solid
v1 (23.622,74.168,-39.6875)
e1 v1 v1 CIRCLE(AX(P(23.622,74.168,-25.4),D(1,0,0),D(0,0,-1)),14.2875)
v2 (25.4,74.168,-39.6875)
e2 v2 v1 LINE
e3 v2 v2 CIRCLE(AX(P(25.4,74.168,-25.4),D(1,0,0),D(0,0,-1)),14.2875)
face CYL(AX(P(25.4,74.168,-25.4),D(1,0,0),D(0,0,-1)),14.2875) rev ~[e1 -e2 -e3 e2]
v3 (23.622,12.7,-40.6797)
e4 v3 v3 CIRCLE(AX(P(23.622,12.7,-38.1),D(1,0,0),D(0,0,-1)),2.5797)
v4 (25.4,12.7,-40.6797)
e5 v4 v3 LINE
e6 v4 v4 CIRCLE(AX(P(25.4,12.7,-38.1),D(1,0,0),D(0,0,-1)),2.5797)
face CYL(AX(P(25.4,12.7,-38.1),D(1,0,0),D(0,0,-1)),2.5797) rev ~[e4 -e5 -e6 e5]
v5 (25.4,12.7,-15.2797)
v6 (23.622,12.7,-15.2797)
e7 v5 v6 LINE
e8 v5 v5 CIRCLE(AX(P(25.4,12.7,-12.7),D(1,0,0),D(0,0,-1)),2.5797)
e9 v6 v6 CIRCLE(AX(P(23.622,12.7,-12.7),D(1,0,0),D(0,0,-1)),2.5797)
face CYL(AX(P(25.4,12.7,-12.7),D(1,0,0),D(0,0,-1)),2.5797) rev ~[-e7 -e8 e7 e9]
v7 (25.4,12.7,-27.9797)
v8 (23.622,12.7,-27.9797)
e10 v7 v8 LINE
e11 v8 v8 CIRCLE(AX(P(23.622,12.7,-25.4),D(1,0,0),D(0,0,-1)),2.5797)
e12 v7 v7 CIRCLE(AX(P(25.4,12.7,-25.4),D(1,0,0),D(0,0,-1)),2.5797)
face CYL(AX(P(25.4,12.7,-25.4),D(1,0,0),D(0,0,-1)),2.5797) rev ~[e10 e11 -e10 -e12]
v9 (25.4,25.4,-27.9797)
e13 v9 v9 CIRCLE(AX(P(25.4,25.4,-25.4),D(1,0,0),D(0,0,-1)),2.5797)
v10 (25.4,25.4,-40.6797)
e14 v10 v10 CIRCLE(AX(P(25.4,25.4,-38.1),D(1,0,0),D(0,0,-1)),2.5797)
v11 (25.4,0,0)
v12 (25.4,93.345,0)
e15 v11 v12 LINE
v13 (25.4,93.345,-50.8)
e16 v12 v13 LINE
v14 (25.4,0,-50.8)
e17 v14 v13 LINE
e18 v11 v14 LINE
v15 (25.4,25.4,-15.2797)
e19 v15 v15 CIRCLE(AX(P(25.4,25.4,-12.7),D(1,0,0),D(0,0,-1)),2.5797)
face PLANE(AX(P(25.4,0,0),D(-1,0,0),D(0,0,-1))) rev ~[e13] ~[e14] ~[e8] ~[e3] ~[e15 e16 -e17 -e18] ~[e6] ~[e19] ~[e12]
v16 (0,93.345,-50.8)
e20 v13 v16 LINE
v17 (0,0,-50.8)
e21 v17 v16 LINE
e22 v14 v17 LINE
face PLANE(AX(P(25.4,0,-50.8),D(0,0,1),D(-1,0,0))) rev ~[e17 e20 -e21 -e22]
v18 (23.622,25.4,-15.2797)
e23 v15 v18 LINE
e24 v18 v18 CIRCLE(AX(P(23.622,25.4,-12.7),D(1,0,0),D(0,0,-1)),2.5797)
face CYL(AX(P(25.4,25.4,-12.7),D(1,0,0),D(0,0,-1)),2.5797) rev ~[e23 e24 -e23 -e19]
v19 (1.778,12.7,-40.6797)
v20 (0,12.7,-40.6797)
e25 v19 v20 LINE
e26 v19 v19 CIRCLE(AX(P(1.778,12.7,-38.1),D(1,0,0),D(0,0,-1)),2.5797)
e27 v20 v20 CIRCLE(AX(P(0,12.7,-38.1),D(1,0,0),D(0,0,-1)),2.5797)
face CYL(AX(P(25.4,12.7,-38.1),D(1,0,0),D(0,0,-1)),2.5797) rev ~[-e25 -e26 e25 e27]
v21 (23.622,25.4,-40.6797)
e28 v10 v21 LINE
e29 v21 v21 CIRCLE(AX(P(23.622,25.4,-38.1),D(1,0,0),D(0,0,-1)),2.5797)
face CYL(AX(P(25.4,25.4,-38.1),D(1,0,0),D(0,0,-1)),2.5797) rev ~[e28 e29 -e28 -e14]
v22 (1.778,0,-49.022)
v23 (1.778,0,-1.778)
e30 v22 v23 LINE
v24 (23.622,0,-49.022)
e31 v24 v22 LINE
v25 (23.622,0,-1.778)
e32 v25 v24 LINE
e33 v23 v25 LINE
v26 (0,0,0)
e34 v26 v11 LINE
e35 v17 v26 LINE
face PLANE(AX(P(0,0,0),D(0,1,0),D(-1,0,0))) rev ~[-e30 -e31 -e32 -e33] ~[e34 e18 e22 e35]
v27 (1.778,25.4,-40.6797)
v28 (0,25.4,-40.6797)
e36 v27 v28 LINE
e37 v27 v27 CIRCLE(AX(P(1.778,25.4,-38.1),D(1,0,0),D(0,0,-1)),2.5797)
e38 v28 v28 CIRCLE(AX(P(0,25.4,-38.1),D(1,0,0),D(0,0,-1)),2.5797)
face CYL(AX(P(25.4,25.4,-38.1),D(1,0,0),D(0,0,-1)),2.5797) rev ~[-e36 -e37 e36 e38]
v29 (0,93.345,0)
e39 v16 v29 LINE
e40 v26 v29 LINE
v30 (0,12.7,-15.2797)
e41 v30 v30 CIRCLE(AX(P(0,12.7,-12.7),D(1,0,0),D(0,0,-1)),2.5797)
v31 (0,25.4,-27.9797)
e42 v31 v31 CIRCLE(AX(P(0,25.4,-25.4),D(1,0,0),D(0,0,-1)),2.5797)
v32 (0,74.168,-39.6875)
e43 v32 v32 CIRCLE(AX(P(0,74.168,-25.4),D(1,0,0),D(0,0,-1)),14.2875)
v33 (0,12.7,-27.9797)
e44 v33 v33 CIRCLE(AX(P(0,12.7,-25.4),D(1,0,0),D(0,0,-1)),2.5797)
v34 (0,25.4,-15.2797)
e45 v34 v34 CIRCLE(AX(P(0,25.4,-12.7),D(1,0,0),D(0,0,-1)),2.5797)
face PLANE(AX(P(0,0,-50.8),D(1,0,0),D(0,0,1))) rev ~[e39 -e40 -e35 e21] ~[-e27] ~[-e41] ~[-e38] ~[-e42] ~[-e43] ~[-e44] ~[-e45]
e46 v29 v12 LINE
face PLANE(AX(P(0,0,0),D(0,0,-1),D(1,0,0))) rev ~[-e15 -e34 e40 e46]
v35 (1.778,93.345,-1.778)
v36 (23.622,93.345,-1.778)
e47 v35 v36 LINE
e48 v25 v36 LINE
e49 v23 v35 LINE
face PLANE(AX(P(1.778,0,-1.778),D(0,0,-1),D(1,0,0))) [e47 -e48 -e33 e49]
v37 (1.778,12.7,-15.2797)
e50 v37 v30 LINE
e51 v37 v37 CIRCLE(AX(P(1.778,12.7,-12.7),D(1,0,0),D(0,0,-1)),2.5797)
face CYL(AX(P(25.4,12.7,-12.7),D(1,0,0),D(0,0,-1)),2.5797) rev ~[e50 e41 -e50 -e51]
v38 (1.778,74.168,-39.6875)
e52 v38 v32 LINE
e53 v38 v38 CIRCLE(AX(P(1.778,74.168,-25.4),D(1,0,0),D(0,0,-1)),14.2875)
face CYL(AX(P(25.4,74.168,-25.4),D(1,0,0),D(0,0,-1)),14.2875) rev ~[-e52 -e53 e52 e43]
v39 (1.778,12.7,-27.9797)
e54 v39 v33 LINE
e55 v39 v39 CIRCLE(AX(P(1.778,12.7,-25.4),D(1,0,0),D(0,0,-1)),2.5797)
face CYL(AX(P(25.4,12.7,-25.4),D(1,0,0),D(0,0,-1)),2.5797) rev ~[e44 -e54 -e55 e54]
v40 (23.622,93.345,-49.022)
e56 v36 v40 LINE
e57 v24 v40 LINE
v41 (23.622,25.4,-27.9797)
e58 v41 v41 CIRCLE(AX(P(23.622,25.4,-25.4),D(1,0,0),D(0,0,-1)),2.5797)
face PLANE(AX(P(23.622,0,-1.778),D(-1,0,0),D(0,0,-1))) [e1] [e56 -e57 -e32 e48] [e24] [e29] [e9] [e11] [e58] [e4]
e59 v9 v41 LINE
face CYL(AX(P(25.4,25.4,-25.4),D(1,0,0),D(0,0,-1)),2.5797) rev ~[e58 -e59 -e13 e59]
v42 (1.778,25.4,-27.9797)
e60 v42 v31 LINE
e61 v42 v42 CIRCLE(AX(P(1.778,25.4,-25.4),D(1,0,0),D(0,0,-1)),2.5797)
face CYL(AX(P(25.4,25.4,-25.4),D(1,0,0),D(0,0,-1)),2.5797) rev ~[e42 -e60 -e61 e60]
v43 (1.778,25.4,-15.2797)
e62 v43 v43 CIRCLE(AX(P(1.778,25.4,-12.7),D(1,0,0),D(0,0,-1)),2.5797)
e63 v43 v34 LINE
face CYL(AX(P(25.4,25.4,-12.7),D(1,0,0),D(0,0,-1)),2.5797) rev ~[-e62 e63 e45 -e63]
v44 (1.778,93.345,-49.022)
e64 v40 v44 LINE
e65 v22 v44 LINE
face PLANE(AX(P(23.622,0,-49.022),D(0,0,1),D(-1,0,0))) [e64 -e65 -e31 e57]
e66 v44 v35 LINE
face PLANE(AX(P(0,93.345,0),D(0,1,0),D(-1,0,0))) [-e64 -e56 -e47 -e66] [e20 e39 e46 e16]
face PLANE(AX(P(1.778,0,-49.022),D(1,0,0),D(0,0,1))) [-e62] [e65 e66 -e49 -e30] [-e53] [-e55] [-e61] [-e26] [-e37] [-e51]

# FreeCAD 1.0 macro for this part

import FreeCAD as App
import Part
import Sketcher

V = App.Vector
Q = App.Units.Quantity


def add_polygon(sketch, points):
    """Adds a closed chain of lines whose ends are joined by coincident constraints."""
    first, n = sketch.GeometryCount, len(points)
    for a, b in zip(points, points[1:] + points[:1]):
        sketch.addGeometry(Part.LineSegment(App.Vector(*a, 0), App.Vector(*b, 0)), False)
    for i in range(n):
        sketch.addConstraint(Sketcher.Constraint("Coincident", first + i, 2, first + (i + 1) % n, 1))

doc = App.newDocument("Part")
body = doc.addObject("PartDesign::Body", "Body")

sketch1 = body.newObject("Sketcher::SketchObject", "Sketch")
sketch1.AttachmentSupport = (doc.getObject("XZ_Plane"), [""])
sketch1.MapMode = "FlatFace"
add_polygon(sketch1, [(0, -51), (0, 0), (25, 0), (25, -51)])
add_polygon(sketch1, [(24, -2), (2, -2), (2, -49), (24, -49)])
sketch1.addConstraint([
    Sketcher.Constraint("Vertical", 0),
    Sketcher.Constraint("Horizontal", 1),
    Sketcher.Constraint("Vertical", 2),
    Sketcher.Constraint("Horizontal", 3),
    Sketcher.Constraint("Horizontal", 4),
    Sketcher.Constraint("Vertical", 5),
    Sketcher.Constraint("Horizontal", 6),
    Sketcher.Constraint("Vertical", 7),
    Sketcher.Constraint("Coincident", 0, 2, -1, 1),
    Sketcher.Constraint("DistanceX", 1, 1, 1, 2, Q("1 in")),
    Sketcher.Constraint("DistanceY", 0, 1, 0, 2, Q("2 in")),
    Sketcher.Constraint("DistanceX", -1, 1, 4, 2, Q("0.07 in")),
    Sketcher.Constraint("DistanceY", 4, 2, -1, 1, Q("0.07 in")),
    Sketcher.Constraint("DistanceY", 3, 2, 5, 2, Q("0.07 in")),
    Sketcher.Constraint("DistanceX", 6, 2, 2, 2, Q("0.07 in")),
])
pad1 = body.newObject("PartDesign::Pad", "Pad")
pad1.Profile = sketch1
pad1.Length = Q("3.675 in")
pad1.Reversed = True

sketch2 = body.newObject("Sketcher::SketchObject", "Sketch001")
sketch2.AttachmentSupport = (doc.getObject("YZ_Plane"), [""])
sketch2.MapMode = "FlatFace"
sketch2.AttachmentOffset = App.Placement(V(0, 0, 1 * 25.4), App.Rotation())
sketch2.addGeometry(Part.Circle(V(74, -25, 0), V(0, 0, 1), 14), False)
sketch2.addConstraint([
    Sketcher.Constraint("Diameter", 0, Q("1.125 in")),
    Sketcher.Constraint("DistanceY", 0, 3, -1, 1, Q("1 in")),
    Sketcher.Constraint("DistanceX", -1, 1, 0, 3, Q("2.92 in")),
])
pocket1 = body.newObject("PartDesign::Pocket", "Pocket")
pocket1.Profile = sketch2
pocket1.Length = Q("1.675 in")

sketch3 = body.newObject("Sketcher::SketchObject", "Sketch002")
sketch3.AttachmentSupport = (doc.getObject("YZ_Plane"), [""])
sketch3.MapMode = "FlatFace"
sketch3.AttachmentOffset = App.Placement(V(0, 0, 1 * 25.4), App.Rotation())
sketch3.addGeometry([
    Part.Circle(V(25.4, -12.7, 0), V(0, 0, 1), 2.6),
    Part.Circle(V(12.7, -12.7, 0), V(0, 0, 1), 2.6),
    Part.Circle(V(25.4, -25.4, 0), V(0, 0, 1), 2.6),
    Part.Circle(V(12.7, -25.4, 0), V(0, 0, 1), 2.6),
    Part.Circle(V(25.4, -38.1, 0), V(0, 0, 1), 2.6),
    Part.Circle(V(12.7, -38.1, 0), V(0, 0, 1), 2.6),
], False)
sketch3.addConstraint([
    Sketcher.Constraint("Equal", 0, 1),
    Sketcher.Constraint("Equal", 1, 2),
    Sketcher.Constraint("Equal", 2, 3),
    Sketcher.Constraint("Equal", 3, 4),
    Sketcher.Constraint("Equal", 4, 5),
    Sketcher.Constraint("Horizontal", 0, 3, 1, 3),
    Sketcher.Constraint("Horizontal", 2, 3, 3, 3),
    Sketcher.Constraint("Horizontal", 4, 3, 5, 3),
    Sketcher.Constraint("Vertical", 0, 3, 2, 3),
    Sketcher.Constraint("Vertical", 1, 3, 3, 3),
    Sketcher.Constraint("Vertical", 2, 3, 4, 3),
    Sketcher.Constraint("Vertical", 3, 3, 5, 3),
    Sketcher.Constraint("Diameter", 0, Q("0.203126 in")),
    Sketcher.Constraint("DistanceY", 0, 3, -1, 1, Q("0.5 in")),
    Sketcher.Constraint("DistanceX", -1, 1, 1, 3, Q("0.5 in")),
    Sketcher.Constraint("DistanceX", 1, 3, 0, 3, Q("0.5 in")),
    Sketcher.Constraint("DistanceY", 2, 3, 0, 3, Q("0.5 in")),
    Sketcher.Constraint("DistanceY", 4, 3, 2, 3, Q("0.5 in")),
])
pocket2 = body.newObject("PartDesign::Pocket", "Pocket001")
pocket2.Profile = sketch3
pocket2.Length = Q("1 in")

doc.recompute()
